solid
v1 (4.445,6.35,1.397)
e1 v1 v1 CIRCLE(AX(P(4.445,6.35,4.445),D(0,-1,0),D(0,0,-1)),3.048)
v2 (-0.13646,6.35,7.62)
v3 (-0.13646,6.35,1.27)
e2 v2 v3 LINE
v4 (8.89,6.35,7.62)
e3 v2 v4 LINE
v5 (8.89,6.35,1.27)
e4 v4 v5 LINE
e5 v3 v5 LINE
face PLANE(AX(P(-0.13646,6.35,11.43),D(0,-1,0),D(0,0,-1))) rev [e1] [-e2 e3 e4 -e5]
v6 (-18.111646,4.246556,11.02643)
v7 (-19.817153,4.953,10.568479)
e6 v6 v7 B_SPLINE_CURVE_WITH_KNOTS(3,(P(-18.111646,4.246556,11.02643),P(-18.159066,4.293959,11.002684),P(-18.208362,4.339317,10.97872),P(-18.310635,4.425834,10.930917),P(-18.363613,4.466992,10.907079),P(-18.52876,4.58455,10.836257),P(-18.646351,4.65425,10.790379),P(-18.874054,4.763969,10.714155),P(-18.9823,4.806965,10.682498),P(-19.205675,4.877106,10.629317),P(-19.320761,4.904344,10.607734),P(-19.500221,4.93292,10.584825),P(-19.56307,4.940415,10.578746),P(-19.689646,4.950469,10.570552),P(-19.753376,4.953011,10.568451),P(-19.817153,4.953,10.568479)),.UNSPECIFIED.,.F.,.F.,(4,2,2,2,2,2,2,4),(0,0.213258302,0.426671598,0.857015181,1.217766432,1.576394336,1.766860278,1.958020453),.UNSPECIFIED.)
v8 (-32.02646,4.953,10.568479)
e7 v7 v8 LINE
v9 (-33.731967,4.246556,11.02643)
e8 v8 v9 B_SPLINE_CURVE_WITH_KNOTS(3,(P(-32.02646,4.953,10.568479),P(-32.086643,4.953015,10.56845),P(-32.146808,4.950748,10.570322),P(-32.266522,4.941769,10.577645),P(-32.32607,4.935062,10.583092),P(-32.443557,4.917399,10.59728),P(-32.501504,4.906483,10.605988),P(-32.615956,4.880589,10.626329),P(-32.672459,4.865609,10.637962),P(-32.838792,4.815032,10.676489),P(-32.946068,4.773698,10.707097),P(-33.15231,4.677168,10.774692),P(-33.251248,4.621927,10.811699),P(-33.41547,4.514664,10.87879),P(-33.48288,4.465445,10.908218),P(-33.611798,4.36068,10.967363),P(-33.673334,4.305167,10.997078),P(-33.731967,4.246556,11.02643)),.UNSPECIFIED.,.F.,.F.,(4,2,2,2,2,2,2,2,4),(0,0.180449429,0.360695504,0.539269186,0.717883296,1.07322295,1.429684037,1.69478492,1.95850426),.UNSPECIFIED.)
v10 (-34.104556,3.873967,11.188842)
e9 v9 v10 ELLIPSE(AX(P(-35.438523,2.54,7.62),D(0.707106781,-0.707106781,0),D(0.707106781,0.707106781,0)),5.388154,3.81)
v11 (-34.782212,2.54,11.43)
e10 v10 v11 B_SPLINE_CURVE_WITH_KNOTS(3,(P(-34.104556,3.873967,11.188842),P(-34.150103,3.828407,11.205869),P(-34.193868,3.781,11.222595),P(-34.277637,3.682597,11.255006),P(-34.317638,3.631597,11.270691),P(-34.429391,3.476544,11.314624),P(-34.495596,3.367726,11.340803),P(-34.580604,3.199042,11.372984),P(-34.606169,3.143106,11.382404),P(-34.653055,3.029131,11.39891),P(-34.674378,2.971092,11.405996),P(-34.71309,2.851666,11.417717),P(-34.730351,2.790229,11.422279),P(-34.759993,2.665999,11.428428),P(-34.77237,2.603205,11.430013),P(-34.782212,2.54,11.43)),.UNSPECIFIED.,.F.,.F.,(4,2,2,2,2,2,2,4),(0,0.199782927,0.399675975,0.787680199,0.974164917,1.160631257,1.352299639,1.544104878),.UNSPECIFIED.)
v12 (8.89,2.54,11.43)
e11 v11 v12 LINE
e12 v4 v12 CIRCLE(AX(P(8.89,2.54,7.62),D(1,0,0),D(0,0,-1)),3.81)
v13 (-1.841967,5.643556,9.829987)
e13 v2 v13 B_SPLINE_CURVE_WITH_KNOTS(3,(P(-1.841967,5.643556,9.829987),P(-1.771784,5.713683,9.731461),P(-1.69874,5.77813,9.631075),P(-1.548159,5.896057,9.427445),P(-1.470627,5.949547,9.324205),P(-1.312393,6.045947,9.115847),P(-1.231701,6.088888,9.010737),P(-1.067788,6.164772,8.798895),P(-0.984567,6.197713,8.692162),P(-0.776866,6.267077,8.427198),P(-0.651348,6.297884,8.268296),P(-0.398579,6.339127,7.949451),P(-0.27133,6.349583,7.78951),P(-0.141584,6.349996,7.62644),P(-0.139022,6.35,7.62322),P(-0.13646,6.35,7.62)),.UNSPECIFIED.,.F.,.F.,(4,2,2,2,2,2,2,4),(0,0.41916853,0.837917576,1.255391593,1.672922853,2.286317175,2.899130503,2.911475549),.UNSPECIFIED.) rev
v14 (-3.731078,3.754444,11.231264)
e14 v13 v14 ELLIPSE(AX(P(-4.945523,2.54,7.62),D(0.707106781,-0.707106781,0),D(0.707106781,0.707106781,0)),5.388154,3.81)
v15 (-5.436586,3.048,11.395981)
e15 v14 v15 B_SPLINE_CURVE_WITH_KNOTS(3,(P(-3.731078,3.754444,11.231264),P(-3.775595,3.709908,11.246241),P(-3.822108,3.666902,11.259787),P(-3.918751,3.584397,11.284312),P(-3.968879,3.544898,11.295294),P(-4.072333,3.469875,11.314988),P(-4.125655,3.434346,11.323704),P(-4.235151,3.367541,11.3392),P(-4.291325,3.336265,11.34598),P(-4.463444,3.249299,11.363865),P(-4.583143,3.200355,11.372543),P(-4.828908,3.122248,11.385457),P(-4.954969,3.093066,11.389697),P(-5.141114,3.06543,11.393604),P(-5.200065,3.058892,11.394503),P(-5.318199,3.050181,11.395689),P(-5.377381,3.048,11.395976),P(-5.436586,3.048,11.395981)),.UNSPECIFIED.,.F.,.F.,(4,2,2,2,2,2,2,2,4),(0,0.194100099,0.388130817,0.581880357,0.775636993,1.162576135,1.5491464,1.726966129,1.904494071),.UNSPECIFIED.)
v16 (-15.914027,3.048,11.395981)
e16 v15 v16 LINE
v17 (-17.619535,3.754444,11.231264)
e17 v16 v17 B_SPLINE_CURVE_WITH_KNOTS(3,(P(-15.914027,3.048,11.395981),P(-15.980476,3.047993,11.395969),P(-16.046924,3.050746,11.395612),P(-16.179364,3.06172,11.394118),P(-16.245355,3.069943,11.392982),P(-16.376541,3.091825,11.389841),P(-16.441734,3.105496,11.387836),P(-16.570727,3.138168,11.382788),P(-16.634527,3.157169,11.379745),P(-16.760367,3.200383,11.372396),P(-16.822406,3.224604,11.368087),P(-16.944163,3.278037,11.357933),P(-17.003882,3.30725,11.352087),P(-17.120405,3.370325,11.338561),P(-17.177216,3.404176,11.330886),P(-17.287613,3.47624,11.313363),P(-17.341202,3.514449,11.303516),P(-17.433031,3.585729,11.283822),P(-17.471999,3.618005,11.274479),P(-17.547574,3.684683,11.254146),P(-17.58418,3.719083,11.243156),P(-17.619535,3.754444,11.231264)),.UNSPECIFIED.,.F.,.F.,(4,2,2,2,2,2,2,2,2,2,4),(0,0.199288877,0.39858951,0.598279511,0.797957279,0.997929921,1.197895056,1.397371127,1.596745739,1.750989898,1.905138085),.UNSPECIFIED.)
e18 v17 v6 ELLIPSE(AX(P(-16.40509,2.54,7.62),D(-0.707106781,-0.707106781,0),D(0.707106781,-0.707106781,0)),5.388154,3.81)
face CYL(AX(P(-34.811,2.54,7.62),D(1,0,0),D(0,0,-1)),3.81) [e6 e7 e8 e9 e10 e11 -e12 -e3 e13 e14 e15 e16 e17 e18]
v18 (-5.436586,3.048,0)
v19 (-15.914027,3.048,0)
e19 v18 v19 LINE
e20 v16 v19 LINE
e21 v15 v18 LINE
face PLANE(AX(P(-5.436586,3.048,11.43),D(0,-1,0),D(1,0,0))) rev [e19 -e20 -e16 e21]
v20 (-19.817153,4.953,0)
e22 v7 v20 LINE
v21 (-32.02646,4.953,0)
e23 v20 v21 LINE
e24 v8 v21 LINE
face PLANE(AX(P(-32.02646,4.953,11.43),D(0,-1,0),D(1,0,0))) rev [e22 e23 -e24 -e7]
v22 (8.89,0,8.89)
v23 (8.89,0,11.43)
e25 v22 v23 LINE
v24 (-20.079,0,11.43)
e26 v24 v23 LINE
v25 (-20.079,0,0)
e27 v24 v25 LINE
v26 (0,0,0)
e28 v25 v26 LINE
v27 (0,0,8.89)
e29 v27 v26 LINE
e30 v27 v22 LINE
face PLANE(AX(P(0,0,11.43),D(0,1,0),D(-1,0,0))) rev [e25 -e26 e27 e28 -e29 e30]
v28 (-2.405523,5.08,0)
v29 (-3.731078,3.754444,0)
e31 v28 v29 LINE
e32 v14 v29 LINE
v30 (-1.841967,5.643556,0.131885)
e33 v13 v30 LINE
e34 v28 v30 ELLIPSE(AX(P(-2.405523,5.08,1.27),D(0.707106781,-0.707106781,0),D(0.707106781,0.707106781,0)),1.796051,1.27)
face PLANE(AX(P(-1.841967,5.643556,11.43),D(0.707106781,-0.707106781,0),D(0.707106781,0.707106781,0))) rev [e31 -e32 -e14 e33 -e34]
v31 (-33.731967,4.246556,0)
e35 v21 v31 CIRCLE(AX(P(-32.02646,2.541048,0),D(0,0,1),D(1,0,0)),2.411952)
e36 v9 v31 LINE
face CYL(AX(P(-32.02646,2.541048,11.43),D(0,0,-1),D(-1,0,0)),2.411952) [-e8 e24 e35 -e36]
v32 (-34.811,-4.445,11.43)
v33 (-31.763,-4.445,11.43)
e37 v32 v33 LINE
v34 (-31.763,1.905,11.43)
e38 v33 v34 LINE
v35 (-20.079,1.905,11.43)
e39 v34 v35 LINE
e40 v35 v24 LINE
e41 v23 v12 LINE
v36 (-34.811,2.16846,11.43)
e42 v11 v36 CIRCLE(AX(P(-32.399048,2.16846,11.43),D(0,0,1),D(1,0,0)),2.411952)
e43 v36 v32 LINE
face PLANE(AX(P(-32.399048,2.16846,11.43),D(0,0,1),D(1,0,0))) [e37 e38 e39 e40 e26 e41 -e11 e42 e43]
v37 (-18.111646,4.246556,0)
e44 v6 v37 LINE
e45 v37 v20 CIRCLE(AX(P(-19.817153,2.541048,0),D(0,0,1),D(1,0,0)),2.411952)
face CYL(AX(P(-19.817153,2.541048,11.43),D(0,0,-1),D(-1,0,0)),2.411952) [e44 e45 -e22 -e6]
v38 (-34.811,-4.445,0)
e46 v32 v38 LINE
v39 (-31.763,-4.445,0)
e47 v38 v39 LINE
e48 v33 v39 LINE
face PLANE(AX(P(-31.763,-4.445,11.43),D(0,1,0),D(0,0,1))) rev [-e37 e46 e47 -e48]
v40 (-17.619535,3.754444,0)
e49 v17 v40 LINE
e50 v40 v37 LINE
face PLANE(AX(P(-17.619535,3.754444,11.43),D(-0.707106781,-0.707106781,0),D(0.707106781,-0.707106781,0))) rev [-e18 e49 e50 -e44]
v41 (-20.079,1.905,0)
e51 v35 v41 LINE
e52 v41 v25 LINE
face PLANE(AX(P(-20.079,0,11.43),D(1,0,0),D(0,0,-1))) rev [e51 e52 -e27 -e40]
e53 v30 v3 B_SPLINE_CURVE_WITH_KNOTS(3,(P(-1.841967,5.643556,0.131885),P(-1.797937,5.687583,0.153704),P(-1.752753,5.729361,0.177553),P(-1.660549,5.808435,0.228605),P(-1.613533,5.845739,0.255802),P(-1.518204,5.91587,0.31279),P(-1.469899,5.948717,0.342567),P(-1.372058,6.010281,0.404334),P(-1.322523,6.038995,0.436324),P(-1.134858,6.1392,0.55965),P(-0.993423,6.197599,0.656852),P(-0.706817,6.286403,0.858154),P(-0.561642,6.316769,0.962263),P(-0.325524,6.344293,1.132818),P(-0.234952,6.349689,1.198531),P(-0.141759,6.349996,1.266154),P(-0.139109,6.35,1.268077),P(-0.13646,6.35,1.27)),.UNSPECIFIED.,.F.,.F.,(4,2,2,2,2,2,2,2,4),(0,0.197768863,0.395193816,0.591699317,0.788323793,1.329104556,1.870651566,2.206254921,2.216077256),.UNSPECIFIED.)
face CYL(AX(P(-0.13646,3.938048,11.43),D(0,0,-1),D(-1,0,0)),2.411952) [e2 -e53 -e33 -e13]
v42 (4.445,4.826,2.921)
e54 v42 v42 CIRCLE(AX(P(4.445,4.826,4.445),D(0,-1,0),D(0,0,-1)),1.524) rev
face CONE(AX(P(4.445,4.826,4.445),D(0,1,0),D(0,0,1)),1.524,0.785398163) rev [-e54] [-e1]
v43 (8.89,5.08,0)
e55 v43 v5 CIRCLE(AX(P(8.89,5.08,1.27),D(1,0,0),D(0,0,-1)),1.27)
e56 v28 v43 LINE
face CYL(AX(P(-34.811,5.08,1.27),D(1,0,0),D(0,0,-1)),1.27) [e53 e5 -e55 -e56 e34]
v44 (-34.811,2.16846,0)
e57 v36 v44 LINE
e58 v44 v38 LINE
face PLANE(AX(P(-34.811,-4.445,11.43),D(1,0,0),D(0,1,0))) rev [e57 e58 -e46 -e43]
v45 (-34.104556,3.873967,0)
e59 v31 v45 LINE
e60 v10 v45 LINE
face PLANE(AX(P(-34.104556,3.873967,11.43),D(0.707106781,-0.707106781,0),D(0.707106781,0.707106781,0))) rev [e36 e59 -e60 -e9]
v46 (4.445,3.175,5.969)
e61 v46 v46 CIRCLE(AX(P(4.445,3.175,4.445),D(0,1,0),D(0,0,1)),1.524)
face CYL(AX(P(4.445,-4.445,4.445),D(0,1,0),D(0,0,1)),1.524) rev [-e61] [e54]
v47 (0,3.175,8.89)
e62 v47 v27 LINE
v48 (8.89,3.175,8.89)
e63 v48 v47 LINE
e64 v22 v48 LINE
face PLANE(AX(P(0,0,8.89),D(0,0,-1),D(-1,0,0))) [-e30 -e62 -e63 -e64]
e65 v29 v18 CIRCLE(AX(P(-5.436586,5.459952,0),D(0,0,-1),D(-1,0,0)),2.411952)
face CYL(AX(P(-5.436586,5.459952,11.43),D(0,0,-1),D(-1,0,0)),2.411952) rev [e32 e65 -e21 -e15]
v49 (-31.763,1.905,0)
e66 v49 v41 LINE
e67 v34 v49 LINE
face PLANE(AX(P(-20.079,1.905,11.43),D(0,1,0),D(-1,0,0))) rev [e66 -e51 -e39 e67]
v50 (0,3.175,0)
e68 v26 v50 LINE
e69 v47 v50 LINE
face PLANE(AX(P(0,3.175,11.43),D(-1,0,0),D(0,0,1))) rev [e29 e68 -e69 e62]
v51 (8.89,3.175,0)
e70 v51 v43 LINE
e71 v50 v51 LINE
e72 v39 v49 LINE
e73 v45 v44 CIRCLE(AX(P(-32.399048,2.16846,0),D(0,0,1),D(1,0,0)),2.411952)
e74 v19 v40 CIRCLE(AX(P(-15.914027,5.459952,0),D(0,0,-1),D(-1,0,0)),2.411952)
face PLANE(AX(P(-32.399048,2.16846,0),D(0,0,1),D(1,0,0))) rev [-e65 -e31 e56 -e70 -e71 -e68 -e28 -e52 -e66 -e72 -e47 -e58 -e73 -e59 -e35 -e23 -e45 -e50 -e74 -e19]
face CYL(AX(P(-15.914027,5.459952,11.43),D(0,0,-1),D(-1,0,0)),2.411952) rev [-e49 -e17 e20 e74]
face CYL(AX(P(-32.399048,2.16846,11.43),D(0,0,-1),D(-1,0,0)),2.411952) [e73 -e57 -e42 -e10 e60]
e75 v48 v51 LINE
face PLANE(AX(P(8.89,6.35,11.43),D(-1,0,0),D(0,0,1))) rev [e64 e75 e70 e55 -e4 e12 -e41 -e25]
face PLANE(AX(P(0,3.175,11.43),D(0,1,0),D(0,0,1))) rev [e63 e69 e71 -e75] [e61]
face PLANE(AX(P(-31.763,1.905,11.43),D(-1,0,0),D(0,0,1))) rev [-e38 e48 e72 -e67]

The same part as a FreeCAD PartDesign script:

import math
import FreeCAD as App
import Part
import Sketcher
from FreeCAD import Vector
Q = App.Units.Quantity


def edges_at(feature, points):
    """Names of the edges that pass closest to the given points."""
    edges = feature.Shape.Edges
    near = lambda p: min(range(len(edges)), key=lambda i: edges[i].distToShape(Part.Vertex(*p))[0])
    return sorted({f"Edge{near(p) + 1}" for p in points})

doc = App.newDocument("Part")
body = doc.addObject("PartDesign::Body", "Body")

sketch1 = doc.addObject("Sketcher::SketchObject", "Sketch")
body.addObject(sketch1)
sketch1.AttachmentSupport = (doc.XY_Plane, [""])
sketch1.MapMode = "FlatFace"
sketch1.addGeometry([
    Part.LineSegment(Vector(-20.079, 1.905, 0), Vector(-20.079, 0, 0)),
    Part.LineSegment(Vector(-20.079, 0, 0), Vector(0, 0, 0)),
    Part.LineSegment(Vector(0, 0, 0), Vector(0, 3.175, 0)),
    Part.LineSegment(Vector(0, 3.175, 0), Vector(8.89, 3.175, 0)),
    Part.LineSegment(Vector(8.89, 3.175, 0), Vector(8.89, 6.35, 0)),
    Part.LineSegment(Vector(8.89, 6.35, 0), Vector(-0.13646, 6.35, 0)),
    Part.ArcOfCircle(Part.Circle(Vector(-0.13646, 3.938048, 0), Vector(0, 0, 1), 2.411952), math.radians(90), math.radians(135)),
    Part.LineSegment(Vector(-1.841967, 5.643556, 0), Vector(-3.731078, 3.754444, 0)),
    Part.ArcOfCircle(Part.Circle(Vector(-5.436586, 5.459952, 0), Vector(0, 0, 1), 2.411952), math.radians(-90), math.radians(-45)),
    Part.LineSegment(Vector(-5.436586, 3.048, 0), Vector(-15.914027, 3.048, 0)),
    Part.ArcOfCircle(Part.Circle(Vector(-15.914027, 5.459952, 0), Vector(0, 0, 1), 2.411952), math.radians(-135), math.radians(-90)),
    Part.LineSegment(Vector(-17.619535, 3.754444, 0), Vector(-18.111646, 4.246556, 0)),
    Part.ArcOfCircle(Part.Circle(Vector(-19.817153, 2.541048, 0), Vector(0, 0, 1), 2.411952), math.radians(45), math.radians(90)),
    Part.LineSegment(Vector(-19.817153, 4.953, 0), Vector(-32.02646, 4.953, 0)),
    Part.ArcOfCircle(Part.Circle(Vector(-32.02646, 2.541048, 0), Vector(0, 0, 1), 2.411952), math.radians(90), math.radians(135)),
    Part.LineSegment(Vector(-33.731967, 4.246556, 0), Vector(-34.104556, 3.873967, 0)),
    Part.ArcOfCircle(Part.Circle(Vector(-32.399048, 2.16846, 0), Vector(0, 0, 1), 2.411952), math.radians(135), math.radians(180)),
    Part.LineSegment(Vector(-34.811, 2.16846, 0), Vector(-34.811, -4.445, 0)),
    Part.LineSegment(Vector(-34.811, -4.445, 0), Vector(-31.763, -4.445, 0)),
    Part.LineSegment(Vector(-31.763, -4.445, 0), Vector(-31.763, 1.905, 0)),
    Part.LineSegment(Vector(-31.763, 1.905, 0), Vector(-20.079, 1.905, 0)),
], False)
sketch1.addConstraint([
    Sketcher.Constraint("Coincident", 0, 2, 1, 1),
    Sketcher.Constraint("Coincident", 1, 2, 2, 1),
    Sketcher.Constraint("Coincident", 2, 2, 3, 1),
    Sketcher.Constraint("Coincident", 3, 2, 4, 1),
    Sketcher.Constraint("Coincident", 4, 2, 5, 1),
    Sketcher.Constraint("Tangent", 5, 2, 6, 1),
    Sketcher.Constraint("Tangent", 6, 2, 7, 1),
    Sketcher.Constraint("Tangent", 7, 2, 8, 2),
    Sketcher.Constraint("Tangent", 8, 1, 9, 1),
    Sketcher.Constraint("Tangent", 9, 2, 10, 2),
    Sketcher.Constraint("Tangent", 10, 1, 11, 1),
    Sketcher.Constraint("Tangent", 11, 2, 12, 1),
    Sketcher.Constraint("Tangent", 12, 2, 13, 1),
    Sketcher.Constraint("Tangent", 13, 2, 14, 1),
    Sketcher.Constraint("Tangent", 14, 2, 15, 1),
    Sketcher.Constraint("Tangent", 15, 2, 16, 1),
    Sketcher.Constraint("Tangent", 16, 2, 17, 1),
    Sketcher.Constraint("Coincident", 17, 2, 18, 1),
    Sketcher.Constraint("Coincident", 18, 2, 19, 1),
    Sketcher.Constraint("Coincident", 19, 2, 20, 1),
    Sketcher.Constraint("Coincident", 20, 2, 0, 1),
    Sketcher.Constraint("Vertical", 0),
    Sketcher.Constraint("Horizontal", 1),
    Sketcher.Constraint("Vertical", 2),
    Sketcher.Constraint("Horizontal", 3),
    Sketcher.Constraint("Vertical", 4),
    Sketcher.Constraint("Horizontal", 5),
    Sketcher.Constraint("Horizontal", 9),
    Sketcher.Constraint("Horizontal", 13),
    Sketcher.Constraint("Vertical", 17),
    Sketcher.Constraint("Horizontal", 18),
    Sketcher.Constraint("Vertical", 19),
    Sketcher.Constraint("Horizontal", 20),
    Sketcher.Constraint("Coincident", 1, 2, -1, 1),
    Sketcher.Constraint("Equal", 6, 8),
    Sketcher.Constraint("Equal", 8, 10),
    Sketcher.Constraint("Equal", 10, 12),
    Sketcher.Constraint("Equal", 12, 14),
    Sketcher.Constraint("Equal", 14, 16),
    Sketcher.Constraint("Perpendicular", 7, 11),
    Sketcher.Constraint("Perpendicular", 11, 15),
    Sketcher.Constraint("Horizontal", 7, 2, 10, 1),
    Sketcher.Constraint("Equal", 2, 4),
    Sketcher.Constraint("DistanceX", 3, 1, 3, 2, Q("0.35 in")),
    Sketcher.Constraint("DistanceX", 18, 1, 18, 2, Q("0.12 in")),
    Sketcher.Constraint("DistanceX", 20, 1, 20, 2, Q("0.46 in")),
    Sketcher.Constraint("DistanceY", 19, 1, 19, 2, Q("0.25 in")),
    Sketcher.Constraint("DistanceY", 0, 2, 0, 1, Q("0.075 in")),
    Sketcher.Constraint("DistanceY", 2, 1, 2, 2, Q("0.125 in")),
    Sketcher.Constraint("DistanceY", -1, 1, 8, 1, Q("0.12 in")),
    Sketcher.Constraint("DistanceY", 20, 2, 12, 2, Q("0.12 in")),
    Sketcher.Constraint("DistanceX", 1, 1, 1, 2, Q("20.079 mm")),
    Sketcher.Constraint("Radius", 6, Q("2.411952 mm")),
    Sketcher.Constraint("DistanceX", 5, 2, 5, 1, Q("9.02646 mm")),
    Sketcher.Constraint("DistanceX", 9, 2, 9, 1, Q("10.47744 mm")),
    Sketcher.Constraint("DistanceY", 17, 2, 17, 1, Q("6.61346 mm")),
])
pad1 = doc.addObject("PartDesign::Pad", "Pad")
body.addObject(pad1)
pad1.Profile = sketch1
pad1.Length = Q("0.45 in")

sketch2 = doc.addObject("Sketcher::SketchObject", "Sketch001")
body.addObject(sketch2)
sketch2.AttachmentSupport = (doc.XY_Plane, [""])
sketch2.MapMode = "FlatFace"
sketch2.AttachmentOffset = App.Placement(Vector(0, 0, 0.45 * 25.4), App.Rotation())
sketch2.addGeometry([
    Part.LineSegment(Vector(0, 3.175, 0), Vector(0, 0, 0)),
    Part.LineSegment(Vector(0, 0, 0), Vector(8.89, 0, 0)),
    Part.LineSegment(Vector(8.89, 0, 0), Vector(8.89, 3.175, 0)),
    Part.LineSegment(Vector(8.89, 3.175, 0), Vector(0, 3.175, 0)),
], False)
sketch2.addConstraint([
    Sketcher.Constraint("Coincident", 0, 2, 1, 1),
    Sketcher.Constraint("Coincident", 1, 2, 2, 1),
    Sketcher.Constraint("Coincident", 2, 2, 3, 1),
    Sketcher.Constraint("Coincident", 3, 2, 0, 1),
    Sketcher.Constraint("Vertical", 0),
    Sketcher.Constraint("Horizontal", 1),
    Sketcher.Constraint("Vertical", 2),
    Sketcher.Constraint("Horizontal", 3),
    Sketcher.Constraint("Coincident", 0, 2, -1, 1),
    Sketcher.Constraint("DistanceX", 1, 1, 1, 2, Q("0.35 in")),
    Sketcher.Constraint("DistanceY", 0, 2, 0, 1, Q("0.125 in")),
])
pad2 = doc.addObject("PartDesign::Pad", "Pad001")
body.addObject(pad2)
pad2.Profile = sketch2
pad2.Length = Q("0.1 in")
pad2.Reversed = True

sketch3 = doc.addObject("Sketcher::SketchObject", "Sketch002")
body.addObject(sketch3)
sketch3.AttachmentSupport = (doc.XZ_Plane, [""])
sketch3.MapMode = "FlatFace"
sketch3.AttachmentOffset = App.Placement(Vector(0, 0, -0.25 * 25.4), App.Rotation())
sketch3.addGeometry(Part.Circle(Vector(4.445, 4.445, 0), Vector(0, 0, 1), 1.524), False)
sketch3.addConstraint([
    Sketcher.Constraint("Diameter", 0, Q("0.12 in")),
    Sketcher.Constraint("DistanceX", -1, 1, 0, 3, Q("0.175 in")),
    Sketcher.Constraint("DistanceY", -1, 1, 0, 3, Q("0.175 in")),
])
pocket1 = doc.addObject("PartDesign::Pocket", "Pocket")
body.addObject(pocket1)
pocket1.Profile = sketch3
pocket1.Type = "ThroughAll"
pocket1.Reversed = True

sketch4 = doc.addObject("Sketcher::SketchObject", "Sketch003")
body.addObject(sketch4)
sketch4.AttachmentSupport = (doc.YZ_Plane, [""])
sketch4.MapMode = "FlatFace"
sketch4.AttachmentOffset = App.Placement(Vector(0, 0, 0.35 * 25.4), App.Rotation())
sketch4.addGeometry([
    Part.ArcOfCircle(Part.Circle(Vector(2.54, 7.62, 0), Vector(0, 0, 1), 3.81), math.radians(0), math.radians(90)),
    Part.LineSegment(Vector(6.35, 7.62, 0), Vector(6.35, 11.43, 0)),
    Part.LineSegment(Vector(6.35, 11.43, 0), Vector(2.54, 11.43, 0)),
    Part.LineSegment(Vector(6.35, 0, 0), Vector(6.35, 1.27, 0)),
    Part.ArcOfCircle(Part.Circle(Vector(5.08, 1.27, 0), Vector(0, 0, 1), 1.27), math.radians(-90), math.radians(0)),
    Part.LineSegment(Vector(5.08, 0, 0), Vector(6.35, 0, 0)),
], False)
sketch4.addConstraint([
    Sketcher.Constraint("Tangent", 0, 1, 1, 1),
    Sketcher.Constraint("Coincident", 1, 2, 2, 1),
    Sketcher.Constraint("Tangent", 2, 2, 0, 2),
    Sketcher.Constraint("Tangent", 3, 2, 4, 2),
    Sketcher.Constraint("Tangent", 4, 1, 5, 1),
    Sketcher.Constraint("Coincident", 5, 2, 3, 1),
    Sketcher.Constraint("Vertical", 1),
    Sketcher.Constraint("Horizontal", 2),
    Sketcher.Constraint("Vertical", 3),
    Sketcher.Constraint("Horizontal", 5),
    Sketcher.Constraint("PointOnObject", 4, 1, -1),
    Sketcher.Constraint("Vertical", 1, 2, 3, 2),
    Sketcher.Constraint("Radius", 0, Q("0.15 in")),
    Sketcher.Constraint("Radius", 4, Q("0.05 in")),
    Sketcher.Constraint("DistanceX", -1, 1, 0, 3, Q("0.1 in")),
    Sketcher.Constraint("DistanceY", -1, 1, 0, 3, Q("0.3 in")),
])
pocket2 = doc.addObject("PartDesign::Pocket", "Pocket001")
body.addObject(pocket2)
pocket2.Profile = sketch4
pocket2.Type = "ThroughAll"
pocket2.Midplane = True
doc.recompute()

chamfer = doc.addObject("PartDesign::Chamfer", "Chamfer")
body.addObject(chamfer)
chamfer.Base = (pocket2, edges_at(pocket2, [(2.921, 6.35, 4.445)]))
chamfer.Size = Q("0.06 in")

doc.recompute()
